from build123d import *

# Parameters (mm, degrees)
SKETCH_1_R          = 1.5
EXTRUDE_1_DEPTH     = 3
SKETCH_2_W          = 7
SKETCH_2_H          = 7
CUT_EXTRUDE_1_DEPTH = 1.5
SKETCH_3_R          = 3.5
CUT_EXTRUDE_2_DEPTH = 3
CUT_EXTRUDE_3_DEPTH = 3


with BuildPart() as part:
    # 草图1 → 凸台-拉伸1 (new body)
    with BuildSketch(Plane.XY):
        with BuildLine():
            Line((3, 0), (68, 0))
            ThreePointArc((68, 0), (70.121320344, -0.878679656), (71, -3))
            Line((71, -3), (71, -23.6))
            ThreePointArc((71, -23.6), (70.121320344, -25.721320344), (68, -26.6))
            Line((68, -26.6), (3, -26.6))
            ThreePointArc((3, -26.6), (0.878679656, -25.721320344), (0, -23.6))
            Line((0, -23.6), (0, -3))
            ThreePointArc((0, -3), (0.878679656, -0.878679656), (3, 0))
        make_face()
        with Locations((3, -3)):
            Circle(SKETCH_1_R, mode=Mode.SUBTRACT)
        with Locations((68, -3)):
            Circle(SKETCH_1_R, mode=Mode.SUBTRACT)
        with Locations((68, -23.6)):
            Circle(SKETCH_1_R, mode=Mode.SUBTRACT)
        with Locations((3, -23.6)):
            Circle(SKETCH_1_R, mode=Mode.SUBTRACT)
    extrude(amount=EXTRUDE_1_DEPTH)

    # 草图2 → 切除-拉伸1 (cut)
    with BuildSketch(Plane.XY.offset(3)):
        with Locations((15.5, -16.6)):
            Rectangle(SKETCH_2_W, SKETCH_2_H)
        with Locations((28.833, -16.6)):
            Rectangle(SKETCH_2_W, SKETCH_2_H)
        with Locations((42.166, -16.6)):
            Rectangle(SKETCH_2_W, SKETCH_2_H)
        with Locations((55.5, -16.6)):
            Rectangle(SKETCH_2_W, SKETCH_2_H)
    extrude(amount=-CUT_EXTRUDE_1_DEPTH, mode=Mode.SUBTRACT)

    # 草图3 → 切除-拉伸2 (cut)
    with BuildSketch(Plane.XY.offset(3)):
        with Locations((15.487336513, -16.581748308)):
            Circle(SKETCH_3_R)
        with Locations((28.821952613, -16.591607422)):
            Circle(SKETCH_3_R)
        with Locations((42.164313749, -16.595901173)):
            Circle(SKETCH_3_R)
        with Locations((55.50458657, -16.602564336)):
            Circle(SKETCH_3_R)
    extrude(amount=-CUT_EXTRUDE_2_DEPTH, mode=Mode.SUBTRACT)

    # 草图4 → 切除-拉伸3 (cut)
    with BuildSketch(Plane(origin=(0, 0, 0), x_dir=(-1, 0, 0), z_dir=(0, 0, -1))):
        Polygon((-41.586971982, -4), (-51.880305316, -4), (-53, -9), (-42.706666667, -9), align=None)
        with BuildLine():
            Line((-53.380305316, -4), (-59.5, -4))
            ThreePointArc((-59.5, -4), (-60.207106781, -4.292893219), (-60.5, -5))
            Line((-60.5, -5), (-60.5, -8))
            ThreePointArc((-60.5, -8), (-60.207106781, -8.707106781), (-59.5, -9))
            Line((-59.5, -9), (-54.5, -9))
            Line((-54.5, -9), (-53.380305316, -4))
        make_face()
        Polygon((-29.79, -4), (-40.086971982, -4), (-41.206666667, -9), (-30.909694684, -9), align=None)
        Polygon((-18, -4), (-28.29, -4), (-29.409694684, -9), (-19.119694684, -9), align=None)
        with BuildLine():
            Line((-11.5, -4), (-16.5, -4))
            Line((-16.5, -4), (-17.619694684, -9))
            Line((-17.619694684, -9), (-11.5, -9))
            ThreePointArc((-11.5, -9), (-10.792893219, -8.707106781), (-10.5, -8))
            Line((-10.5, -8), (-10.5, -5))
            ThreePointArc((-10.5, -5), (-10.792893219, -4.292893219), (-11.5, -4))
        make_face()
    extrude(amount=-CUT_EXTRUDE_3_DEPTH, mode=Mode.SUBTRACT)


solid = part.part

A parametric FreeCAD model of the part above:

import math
import FreeCAD as App
import Part
import Sketcher
from FreeCAD import Vector
Q = App.Units.Quantity

doc = App.newDocument("Part")
body = doc.addObject("PartDesign::Body", "Body")

sketch1 = body.newObject("Sketcher::SketchObject", "Sketch")
sketch1.AttachmentSupport = (doc.getObject("XY_Plane"), [""])
sketch1.MapMode = "FlatFace"
sketch1.addGeometry([
    Part.LineSegment(Vector(68, 0, 0), Vector(3, 0, 0)),
    Part.ArcOfCircle(Part.Circle(Vector(3, -3, 0), Vector(0, 0, 1), 3), math.radians(90), math.radians(180)),
    Part.LineSegment(Vector(0, -3, 0), Vector(0, -23.6, 0)),
    Part.ArcOfCircle(Part.Circle(Vector(3, -23.6, 0), Vector(0, 0, 1), 3), math.radians(180), math.radians(270)),
    Part.LineSegment(Vector(3, -26.6, 0), Vector(68, -26.6, 0)),
    Part.ArcOfCircle(Part.Circle(Vector(68, -23.6, 0), Vector(0, 0, 1), 3), math.radians(-90), math.radians(0)),
    Part.LineSegment(Vector(71, -23.6, 0), Vector(71, -3, 0)),
    Part.ArcOfCircle(Part.Circle(Vector(68, -3, 0), Vector(0, 0, 1), 3), math.radians(0), math.radians(90)),
    Part.Circle(Vector(68, -23.6, 0), Vector(0, 0, 1), 1.5),
    Part.Circle(Vector(3, -23.6, 0), Vector(0, 0, 1), 1.5),
    Part.Circle(Vector(68, -3, 0), Vector(0, 0, 1), 1.5),
    Part.Circle(Vector(3, -3, 0), Vector(0, 0, 1), 1.5),
], False)
sketch1.addConstraint([
    Sketcher.Constraint("Tangent", 0, 2, 1, 1),
    Sketcher.Constraint("Tangent", 1, 2, 2, 1),
    Sketcher.Constraint("Tangent", 2, 2, 3, 1),
    Sketcher.Constraint("Tangent", 3, 2, 4, 1),
    Sketcher.Constraint("Tangent", 4, 2, 5, 1),
    Sketcher.Constraint("Tangent", 5, 2, 6, 1),
    Sketcher.Constraint("Tangent", 6, 2, 7, 1),
    Sketcher.Constraint("Tangent", 7, 2, 0, 1),
    Sketcher.Constraint("Horizontal", 0),
    Sketcher.Constraint("Vertical", 2),
    Sketcher.Constraint("Horizontal", 4),
    Sketcher.Constraint("Vertical", 6),
    Sketcher.Constraint("Coincident", 8, 3, 5, 3),
    Sketcher.Constraint("Coincident", 9, 3, 3, 3),
    Sketcher.Constraint("Coincident", 10, 3, 7, 3),
    Sketcher.Constraint("Coincident", 11, 3, 1, 3),
    Sketcher.Constraint("Equal", 1, 3),
    Sketcher.Constraint("Equal", 3, 5),
    Sketcher.Constraint("Equal", 5, 7),
    Sketcher.Constraint("Equal", 8, 9),
    Sketcher.Constraint("Equal", 9, 10),
    Sketcher.Constraint("Equal", 10, 11),
    Sketcher.Constraint("PointOnObject", 0, 2, -1),
    Sketcher.Constraint("PointOnObject", 1, 2, -2),
    Sketcher.Constraint("Diameter", 8, Q("3 mm")),
    Sketcher.Constraint("Radius", 1, Q("3 mm")),
    Sketcher.Constraint("DistanceX", 0, 2, 0, 1, Q("65 mm")),
    Sketcher.Constraint("DistanceY", 2, 2, 2, 1, Q("20.6 mm")),
])
pad1 = body.newObject("PartDesign::Pad", "Pad")
pad1.Profile = sketch1
pad1.Length = 3

sketch2 = body.newObject("Sketcher::SketchObject", "Sketch001")
sketch2.AttachmentSupport = (doc.getObject("XY_Plane"), [""])
sketch2.MapMode = "FlatFace"
sketch2.AttachmentOffset = App.Placement(Vector(0, 0, 3), App.Rotation())
sketch2.addGeometry([
    Part.LineSegment(Vector(12, -13.1, 0), Vector(12, -20.1, 0)),
    Part.LineSegment(Vector(12, -20.1, 0), Vector(19, -20.1, 0)),
    Part.LineSegment(Vector(19, -20.1, 0), Vector(19, -13.1, 0)),
    Part.LineSegment(Vector(19, -13.1, 0), Vector(12, -13.1, 0)),
    Part.LineSegment(Vector(25.333, -13.1, 0), Vector(25.333, -20.1, 0)),
    Part.LineSegment(Vector(25.333, -20.1, 0), Vector(32.333, -20.1, 0)),
    Part.LineSegment(Vector(32.333, -20.1, 0), Vector(32.333, -13.1, 0)),
    Part.LineSegment(Vector(32.333, -13.1, 0), Vector(25.333, -13.1, 0)),
    Part.LineSegment(Vector(38.666, -13.1, 0), Vector(38.666, -20.1, 0)),
    Part.LineSegment(Vector(38.666, -20.1, 0), Vector(45.666, -20.1, 0)),
    Part.LineSegment(Vector(45.666, -20.1, 0), Vector(45.666, -13.1, 0)),
    Part.LineSegment(Vector(45.666, -13.1, 0), Vector(38.666, -13.1, 0)),
    Part.LineSegment(Vector(52, -13.1, 0), Vector(52, -20.1, 0)),
    Part.LineSegment(Vector(52, -20.1, 0), Vector(59, -20.1, 0)),
    Part.LineSegment(Vector(59, -20.1, 0), Vector(59, -13.1, 0)),
    Part.LineSegment(Vector(59, -13.1, 0), Vector(52, -13.1, 0)),
], False)
sketch2.addConstraint([
    Sketcher.Constraint("Coincident", 0, 2, 1, 1),
    Sketcher.Constraint("Coincident", 1, 2, 2, 1),
    Sketcher.Constraint("Coincident", 2, 2, 3, 1),
    Sketcher.Constraint("Coincident", 3, 2, 0, 1),
    Sketcher.Constraint("Coincident", 4, 2, 5, 1),
    Sketcher.Constraint("Coincident", 5, 2, 6, 1),
    Sketcher.Constraint("Coincident", 6, 2, 7, 1),
    Sketcher.Constraint("Coincident", 7, 2, 4, 1),
    Sketcher.Constraint("Coincident", 8, 2, 9, 1),
    Sketcher.Constraint("Coincident", 9, 2, 10, 1),
    Sketcher.Constraint("Coincident", 10, 2, 11, 1),
    Sketcher.Constraint("Coincident", 11, 2, 8, 1),
    Sketcher.Constraint("Coincident", 12, 2, 13, 1),
    Sketcher.Constraint("Coincident", 13, 2, 14, 1),
    Sketcher.Constraint("Coincident", 14, 2, 15, 1),
    Sketcher.Constraint("Coincident", 15, 2, 12, 1),
    Sketcher.Constraint("Vertical", 0),
    Sketcher.Constraint("Horizontal", 1),
    Sketcher.Constraint("Vertical", 2),
    Sketcher.Constraint("Horizontal", 3),
    Sketcher.Constraint("Vertical", 4),
    Sketcher.Constraint("Horizontal", 5),
    Sketcher.Constraint("Vertical", 6),
    Sketcher.Constraint("Horizontal", 7),
    Sketcher.Constraint("Vertical", 8),
    Sketcher.Constraint("Horizontal", 9),
    Sketcher.Constraint("Vertical", 10),
    Sketcher.Constraint("Horizontal", 11),
    Sketcher.Constraint("Vertical", 12),
    Sketcher.Constraint("Horizontal", 13),
    Sketcher.Constraint("Vertical", 14),
    Sketcher.Constraint("Horizontal", 15),
    Sketcher.Constraint("Horizontal", 1, 2, 4, 2),
    Sketcher.Constraint("Horizontal", 3, 2, 6, 2),
    Sketcher.Constraint("Horizontal", 5, 2, 8, 2),
    Sketcher.Constraint("Horizontal", 7, 2, 10, 2),
    Sketcher.Constraint("Horizontal", 9, 2, 12, 2),
    Sketcher.Constraint("Horizontal", 11, 2, 14, 2),
    Sketcher.Constraint("Equal", 3, 5),
    Sketcher.Constraint("Equal", 7, 9),
    Sketcher.Constraint("Equal", 11, 13),
    Sketcher.Constraint("Equal", 15, 0),
    Sketcher.Constraint("DistanceX", 1, 1, 1, 2, Q("7 mm")),
    Sketcher.Constraint("DistanceX", -1, 1, 0, 2, Q("12 mm")),
    Sketcher.Constraint("DistanceX", -1, 1, 12, 2, Q("52 mm")),
    Sketcher.Constraint("DistanceY", 0, 2, -1, 1, Q("20.1 mm")),
    Sketcher.Constraint("DistanceX", -1, 1, 4, 2, Q("25.333 mm")),
    Sketcher.Constraint("DistanceX", -1, 1, 8, 2, Q("38.666 mm")),
])
pocket1 = body.newObject("PartDesign::Pocket", "Pocket")
pocket1.Profile = sketch2
pocket1.Length = 1.5

sketch3 = body.newObject("Sketcher::SketchObject", "Sketch002")
sketch3.AttachmentSupport = (doc.getObject("XY_Plane"), [""])
sketch3.MapMode = "FlatFace"
sketch3.AttachmentOffset = App.Placement(Vector(0, 0, 3), App.Rotation())
sketch3.addGeometry([
    Part.Circle(Vector(15.487337, -16.581748, 0), Vector(0, 0, 1), 3.5),
    Part.Circle(Vector(28.821953, -16.591607, 0), Vector(0, 0, 1), 3.5),
    Part.Circle(Vector(42.164314, -16.595901, 0), Vector(0, 0, 1), 3.5),
    Part.Circle(Vector(55.504587, -16.602564, 0), Vector(0, 0, 1), 3.5),
], False)
sketch3.addConstraint([
    Sketcher.Constraint("Equal", 0, 1),
    Sketcher.Constraint("Equal", 1, 2),
    Sketcher.Constraint("Equal", 2, 3),
    Sketcher.Constraint("Diameter", 0, Q("7 mm")),
    Sketcher.Constraint("DistanceY", 2, 3, -1, 1, Q("16.595901 mm")),
    Sketcher.Constraint("DistanceY", 0, 3, -1, 1, Q("16.581748 mm")),
    Sketcher.Constraint("DistanceY", 1, 3, 0, 3, Q("0.009859 mm")),
    Sketcher.Constraint("DistanceX", 1, 3, 2, 3, Q("13.342361 mm")),
    Sketcher.Constraint("DistanceX", 0, 3, 3, 3, Q("40.01725 mm")),
    Sketcher.Constraint("DistanceX", -1, 1, 0, 3, Q("15.487337 mm")),
    Sketcher.Constraint("DistanceX", -1, 1, 1, 3, Q("28.821953 mm")),
    Sketcher.Constraint("DistanceY", 3, 3, -1, 1, Q("16.602564 mm")),
])
pocket2 = body.newObject("PartDesign::Pocket", "Pocket001")
pocket2.Profile = sketch3
pocket2.Length = 3

sketch4 = body.newObject("Sketcher::SketchObject", "Sketch003")
sketch4.AttachmentSupport = (doc.getObject("XY_Plane"), [""])
sketch4.MapMode = "FlatFace"
sketch4.addGeometry([
    Part.LineSegment(Vector(41.586972, -4, 0), Vector(51.880305, -4, 0)),
    Part.LineSegment(Vector(51.880305, -4, 0), Vector(53, -9, 0)),
    Part.LineSegment(Vector(53, -9, 0), Vector(42.706667, -9, 0)),
    Part.LineSegment(Vector(42.706667, -9, 0), Vector(41.586972, -4, 0)),
    Part.LineSegment(Vector(53.380305, -4, 0), Vector(59.5, -4, 0)),
    Part.ArcOfCircle(Part.Circle(Vector(59.5, -5, 0), Vector(0, 0, 1), 1), math.radians(0), math.radians(90)),
    Part.LineSegment(Vector(60.5, -5, 0), Vector(60.5, -8, 0)),
    Part.ArcOfCircle(Part.Circle(Vector(59.5, -8, 0), Vector(0, 0, 1), 1), math.radians(-90), math.radians(0)),
    Part.LineSegment(Vector(59.5, -9, 0), Vector(54.5, -9, 0)),
    Part.LineSegment(Vector(54.5, -9, 0), Vector(53.380305, -4, 0)),
    Part.LineSegment(Vector(29.79, -4, 0), Vector(40.086972, -4, 0)),
    Part.LineSegment(Vector(40.086972, -4, 0), Vector(41.206667, -9, 0)),
    Part.LineSegment(Vector(41.206667, -9, 0), Vector(30.909695, -9, 0)),
    Part.LineSegment(Vector(30.909695, -9, 0), Vector(29.79, -4, 0)),
    Part.LineSegment(Vector(18, -4, 0), Vector(28.29, -4, 0)),
    Part.LineSegment(Vector(28.29, -4, 0), Vector(29.409695, -9, 0)),
    Part.LineSegment(Vector(29.409695, -9, 0), Vector(19.119695, -9, 0)),
    Part.LineSegment(Vector(19.119695, -9, 0), Vector(18, -4, 0)),
    Part.LineSegment(Vector(11.5, -4, 0), Vector(16.5, -4, 0)),
    Part.LineSegment(Vector(16.5, -4, 0), Vector(17.619695, -9, 0)),
    Part.LineSegment(Vector(17.619695, -9, 0), Vector(11.5, -9, 0)),
    Part.ArcOfCircle(Part.Circle(Vector(11.5, -8, 0), Vector(0, 0, 1), 1), math.radians(-180), math.radians(-90)),
    Part.LineSegment(Vector(10.5, -8, 0), Vector(10.5, -5, 0)),
    Part.ArcOfCircle(Part.Circle(Vector(11.5, -5, 0), Vector(0, 0, 1), 1), math.radians(90), math.radians(180)),
], False)
sketch4.addConstraint([
    Sketcher.Constraint("Coincident", 0, 2, 1, 1),
    Sketcher.Constraint("Coincident", 1, 2, 2, 1),
    Sketcher.Constraint("Coincident", 2, 2, 3, 1),
    Sketcher.Constraint("Coincident", 3, 2, 0, 1),
    Sketcher.Constraint("Tangent", 4, 2, 5, 2),
    Sketcher.Constraint("Tangent", 5, 1, 6, 1),
    Sketcher.Constraint("Tangent", 6, 2, 7, 2),
    Sketcher.Constraint("Tangent", 7, 1, 8, 1),
    Sketcher.Constraint("Coincident", 8, 2, 9, 1),
    Sketcher.Constraint("Coincident", 9, 2, 4, 1),
    Sketcher.Constraint("Coincident", 10, 2, 11, 1),
    Sketcher.Constraint("Coincident", 11, 2, 12, 1),
    Sketcher.Constraint("Coincident", 12, 2, 13, 1),
    Sketcher.Constraint("Coincident", 13, 2, 10, 1),
    Sketcher.Constraint("Coincident", 14, 2, 15, 1),
    Sketcher.Constraint("Coincident", 15, 2, 16, 1),
    Sketcher.Constraint("Coincident", 16, 2, 17, 1),
    Sketcher.Constraint("Coincident", 17, 2, 14, 1),
    Sketcher.Constraint("Coincident", 18, 2, 19, 1),
    Sketcher.Constraint("Coincident", 19, 2, 20, 1),
    Sketcher.Constraint("Tangent", 20, 2, 21, 2),
    Sketcher.Constraint("Tangent", 21, 1, 22, 1),
    Sketcher.Constraint("Tangent", 22, 2, 23, 2),
    Sketcher.Constraint("Tangent", 23, 1, 18, 1),
    Sketcher.Constraint("Horizontal", 0),
    Sketcher.Constraint("Horizontal", 2),
    Sketcher.Constraint("Horizontal", 4),
    Sketcher.Constraint("Vertical", 6),
    Sketcher.Constraint("Horizontal", 8),
    Sketcher.Constraint("Horizontal", 10),
    Sketcher.Constraint("Horizontal", 12),
    Sketcher.Constraint("Horizontal", 14),
    Sketcher.Constraint("Horizontal", 16),
    Sketcher.Constraint("Horizontal", 18),
    Sketcher.Constraint("Horizontal", 20),
    Sketcher.Constraint("Vertical", 22),
    Sketcher.Constraint("Equal", 5, 7),
    Sketcher.Constraint("Equal", 7, 21),
    Sketcher.Constraint("Equal", 21, 23),
    Sketcher.Constraint("Parallel", 1, 3),
    Sketcher.Constraint("Parallel", 3, 9),
    Sketcher.Constraint("Parallel", 9, 11),
    Sketcher.Constraint("Parallel", 11, 13),
    Sketcher.Constraint("Parallel", 13, 15),
    Sketcher.Constraint("Parallel", 15, 17),
    Sketcher.Constraint("Parallel", 17, 19),
    Sketcher.Constraint("Horizontal", 7, 3, 21, 3),
    Sketcher.Constraint("Horizontal", 5, 3, 23, 3),
    Sketcher.Constraint("Horizontal", 3, 2, 4, 2),
    Sketcher.Constraint("Horizontal", 2, 2, 7, 1),
    Sketcher.Constraint("Horizontal", 9, 2, 10, 2),
    Sketcher.Constraint("Horizontal", 8, 2, 11, 2),
    Sketcher.Constraint("Horizontal", 13, 2, 14, 2),
    Sketcher.Constraint("Horizontal", 12, 2, 15, 2),
    Sketcher.Constraint("Equal", 8, 18),
    Sketcher.Constraint("Radius", 5, Q("1 mm")),
    Sketcher.Constraint("DistanceX", 8, 2, 8, 1, Q("5 mm")),
    Sketcher.Constraint("DistanceY", 6, 2, 6, 1, Q("3 mm")),
    Sketcher.Constraint("DistanceY", 5, 3, -1, 1, Q("5 mm")),
    Sketcher.Constraint("DistanceX", -1, 1, 1, 2, Q("53 mm")),
    Sketcher.Constraint("DistanceX", -1, 1, 17, 2, Q("18 mm")),
    Sketcher.Constraint("DistanceX", 21, 3, 7, 3, Q("48 mm")),
    Sketcher.Constraint("DistanceX", 14, 1, 14, 2, Q("10.29 mm")),
    Sketcher.Constraint("DistanceX", -1, 1, 5, 3, Q("59.5 mm")),
    Sketcher.Constraint("DistanceX", 10, 2, 3, 2, Q("1.5 mm")),
    Sketcher.Constraint("DistanceX", 14, 2, 13, 2, Q("1.5 mm")),
    Sketcher.Constraint("DistanceX", 10, 1, 10, 2, Q("10.296972 mm")),
    Sketcher.Constraint("Distance", 1, Q("5.123838 mm")),
])
pocket3 = body.newObject("PartDesign::Pocket", "Pocket002")
pocket3.Profile = sketch4
pocket3.Length = 3
pocket3.Reversed = True

doc.recompute()
